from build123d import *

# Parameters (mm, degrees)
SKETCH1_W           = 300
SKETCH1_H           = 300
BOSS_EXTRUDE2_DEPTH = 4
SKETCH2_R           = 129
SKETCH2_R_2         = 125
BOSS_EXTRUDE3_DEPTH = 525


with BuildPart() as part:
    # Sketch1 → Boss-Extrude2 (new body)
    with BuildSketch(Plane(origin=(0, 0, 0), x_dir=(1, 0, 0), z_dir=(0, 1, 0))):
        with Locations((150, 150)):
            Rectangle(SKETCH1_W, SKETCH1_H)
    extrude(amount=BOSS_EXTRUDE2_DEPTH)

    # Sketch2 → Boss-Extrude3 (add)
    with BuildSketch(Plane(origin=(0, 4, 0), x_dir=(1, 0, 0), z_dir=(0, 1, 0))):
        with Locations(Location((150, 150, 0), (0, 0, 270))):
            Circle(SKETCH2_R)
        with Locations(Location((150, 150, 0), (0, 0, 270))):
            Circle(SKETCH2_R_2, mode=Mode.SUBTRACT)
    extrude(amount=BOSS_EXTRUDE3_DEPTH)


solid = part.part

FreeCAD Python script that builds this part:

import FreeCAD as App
import Part
import Sketcher
from FreeCAD import Vector
Q = App.Units.Quantity


def add_polygon(sketch, points):
    """Adds a closed chain of lines whose ends are joined by coincident constraints."""
    first, n = sketch.GeometryCount, len(points)
    for a, b in zip(points, points[1:] + points[:1]):
        sketch.addGeometry(Part.LineSegment(App.Vector(*a, 0), App.Vector(*b, 0)), False)
    for i in range(n):
        sketch.addConstraint(Sketcher.Constraint("Coincident", first + i, 2, first + (i + 1) % n, 1))

doc = App.newDocument("Part")
params = doc.addObject("Spreadsheet::Sheet", "Params")
for row, (alias, value) in enumerate([
    ("sketch1_width", "300 mm"),
    ("pad1_length", "4 mm"),
    ("sketch2_diameter", "258 mm"),
    ("sketch2_diameter2", "250 mm"),
    ("pad2_length", "525 mm"),
], start=1):
    params.set(f"A{row}", alias)
    params.set(f"B{row}", "=" + value)
    params.setAlias(f"B{row}", alias)

body = doc.addObject("PartDesign::Body", "Body")

# Sketch on XZ plane
sketch1 = body.newObject("Sketcher::SketchObject", "Sketch")
sketch1.AttachmentSupport = (doc.getObject("XZ_Plane"), [""])
sketch1.MapMode = "FlatFace"
add_polygon(sketch1, [(0, -300), (0, 0), (300, 0), (300, -300)])  # lines 0-3
sketch1.addConstraint([
    Sketcher.Constraint("Vertical", 0),
    Sketcher.Constraint("Horizontal", 1),
    Sketcher.Constraint("Vertical", 2),
    Sketcher.Constraint("Horizontal", 3),
    Sketcher.Constraint("Coincident", 0, 2, -1, 1),
    Sketcher.Constraint("Equal", 3, 0),
    Sketcher.Constraint("DistanceX", 1, 1, 1, 2, Q("300 mm")),
])
sketch1.setExpression("Constraints[10]", "Params.sketch1_width")
pad1 = body.newObject("PartDesign::Pad", "Pad")
pad1.Profile = sketch1
pad1.setExpression("Length", "Params.pad1_length")
pad1.Reversed = True

# Sketch on XZ plane
sketch2 = body.newObject("Sketcher::SketchObject", "Sketch001")
sketch2.AttachmentSupport = (doc.getObject("XZ_Plane"), [""])
sketch2.MapMode = "FlatFace"
sketch2.AttachmentOffset = App.Placement(Vector(0, 0, -4), App.Rotation())
sketch2.addGeometry([
    Part.Circle(Vector(150, -150, 0), Vector(0, 0, 1), 129),
    Part.Circle(Vector(150, -150, 0), Vector(0, 0, 1), 125),
], False)
sketch2.addConstraint([
    Sketcher.Constraint("Coincident", 1, 3, 0, 3),
    Sketcher.Constraint("Diameter", 0, Q("258 mm")),
    Sketcher.Constraint("Diameter", 1, Q("250 mm")),
    Sketcher.Constraint("DistanceX", -1, 1, 0, 3, Q("150 mm")),
    Sketcher.Constraint("DistanceY", 0, 3, -1, 1, Q("150 mm")),
])
sketch2.setExpression("Constraints[1]", "Params.sketch2_diameter")
sketch2.setExpression("Constraints[2]", "Params.sketch2_diameter2")
pad2 = body.newObject("PartDesign::Pad", "Pad001")
pad2.Profile = sketch2
pad2.setExpression("Length", "Params.pad2_length")
pad2.Reversed = True

doc.recompute()
